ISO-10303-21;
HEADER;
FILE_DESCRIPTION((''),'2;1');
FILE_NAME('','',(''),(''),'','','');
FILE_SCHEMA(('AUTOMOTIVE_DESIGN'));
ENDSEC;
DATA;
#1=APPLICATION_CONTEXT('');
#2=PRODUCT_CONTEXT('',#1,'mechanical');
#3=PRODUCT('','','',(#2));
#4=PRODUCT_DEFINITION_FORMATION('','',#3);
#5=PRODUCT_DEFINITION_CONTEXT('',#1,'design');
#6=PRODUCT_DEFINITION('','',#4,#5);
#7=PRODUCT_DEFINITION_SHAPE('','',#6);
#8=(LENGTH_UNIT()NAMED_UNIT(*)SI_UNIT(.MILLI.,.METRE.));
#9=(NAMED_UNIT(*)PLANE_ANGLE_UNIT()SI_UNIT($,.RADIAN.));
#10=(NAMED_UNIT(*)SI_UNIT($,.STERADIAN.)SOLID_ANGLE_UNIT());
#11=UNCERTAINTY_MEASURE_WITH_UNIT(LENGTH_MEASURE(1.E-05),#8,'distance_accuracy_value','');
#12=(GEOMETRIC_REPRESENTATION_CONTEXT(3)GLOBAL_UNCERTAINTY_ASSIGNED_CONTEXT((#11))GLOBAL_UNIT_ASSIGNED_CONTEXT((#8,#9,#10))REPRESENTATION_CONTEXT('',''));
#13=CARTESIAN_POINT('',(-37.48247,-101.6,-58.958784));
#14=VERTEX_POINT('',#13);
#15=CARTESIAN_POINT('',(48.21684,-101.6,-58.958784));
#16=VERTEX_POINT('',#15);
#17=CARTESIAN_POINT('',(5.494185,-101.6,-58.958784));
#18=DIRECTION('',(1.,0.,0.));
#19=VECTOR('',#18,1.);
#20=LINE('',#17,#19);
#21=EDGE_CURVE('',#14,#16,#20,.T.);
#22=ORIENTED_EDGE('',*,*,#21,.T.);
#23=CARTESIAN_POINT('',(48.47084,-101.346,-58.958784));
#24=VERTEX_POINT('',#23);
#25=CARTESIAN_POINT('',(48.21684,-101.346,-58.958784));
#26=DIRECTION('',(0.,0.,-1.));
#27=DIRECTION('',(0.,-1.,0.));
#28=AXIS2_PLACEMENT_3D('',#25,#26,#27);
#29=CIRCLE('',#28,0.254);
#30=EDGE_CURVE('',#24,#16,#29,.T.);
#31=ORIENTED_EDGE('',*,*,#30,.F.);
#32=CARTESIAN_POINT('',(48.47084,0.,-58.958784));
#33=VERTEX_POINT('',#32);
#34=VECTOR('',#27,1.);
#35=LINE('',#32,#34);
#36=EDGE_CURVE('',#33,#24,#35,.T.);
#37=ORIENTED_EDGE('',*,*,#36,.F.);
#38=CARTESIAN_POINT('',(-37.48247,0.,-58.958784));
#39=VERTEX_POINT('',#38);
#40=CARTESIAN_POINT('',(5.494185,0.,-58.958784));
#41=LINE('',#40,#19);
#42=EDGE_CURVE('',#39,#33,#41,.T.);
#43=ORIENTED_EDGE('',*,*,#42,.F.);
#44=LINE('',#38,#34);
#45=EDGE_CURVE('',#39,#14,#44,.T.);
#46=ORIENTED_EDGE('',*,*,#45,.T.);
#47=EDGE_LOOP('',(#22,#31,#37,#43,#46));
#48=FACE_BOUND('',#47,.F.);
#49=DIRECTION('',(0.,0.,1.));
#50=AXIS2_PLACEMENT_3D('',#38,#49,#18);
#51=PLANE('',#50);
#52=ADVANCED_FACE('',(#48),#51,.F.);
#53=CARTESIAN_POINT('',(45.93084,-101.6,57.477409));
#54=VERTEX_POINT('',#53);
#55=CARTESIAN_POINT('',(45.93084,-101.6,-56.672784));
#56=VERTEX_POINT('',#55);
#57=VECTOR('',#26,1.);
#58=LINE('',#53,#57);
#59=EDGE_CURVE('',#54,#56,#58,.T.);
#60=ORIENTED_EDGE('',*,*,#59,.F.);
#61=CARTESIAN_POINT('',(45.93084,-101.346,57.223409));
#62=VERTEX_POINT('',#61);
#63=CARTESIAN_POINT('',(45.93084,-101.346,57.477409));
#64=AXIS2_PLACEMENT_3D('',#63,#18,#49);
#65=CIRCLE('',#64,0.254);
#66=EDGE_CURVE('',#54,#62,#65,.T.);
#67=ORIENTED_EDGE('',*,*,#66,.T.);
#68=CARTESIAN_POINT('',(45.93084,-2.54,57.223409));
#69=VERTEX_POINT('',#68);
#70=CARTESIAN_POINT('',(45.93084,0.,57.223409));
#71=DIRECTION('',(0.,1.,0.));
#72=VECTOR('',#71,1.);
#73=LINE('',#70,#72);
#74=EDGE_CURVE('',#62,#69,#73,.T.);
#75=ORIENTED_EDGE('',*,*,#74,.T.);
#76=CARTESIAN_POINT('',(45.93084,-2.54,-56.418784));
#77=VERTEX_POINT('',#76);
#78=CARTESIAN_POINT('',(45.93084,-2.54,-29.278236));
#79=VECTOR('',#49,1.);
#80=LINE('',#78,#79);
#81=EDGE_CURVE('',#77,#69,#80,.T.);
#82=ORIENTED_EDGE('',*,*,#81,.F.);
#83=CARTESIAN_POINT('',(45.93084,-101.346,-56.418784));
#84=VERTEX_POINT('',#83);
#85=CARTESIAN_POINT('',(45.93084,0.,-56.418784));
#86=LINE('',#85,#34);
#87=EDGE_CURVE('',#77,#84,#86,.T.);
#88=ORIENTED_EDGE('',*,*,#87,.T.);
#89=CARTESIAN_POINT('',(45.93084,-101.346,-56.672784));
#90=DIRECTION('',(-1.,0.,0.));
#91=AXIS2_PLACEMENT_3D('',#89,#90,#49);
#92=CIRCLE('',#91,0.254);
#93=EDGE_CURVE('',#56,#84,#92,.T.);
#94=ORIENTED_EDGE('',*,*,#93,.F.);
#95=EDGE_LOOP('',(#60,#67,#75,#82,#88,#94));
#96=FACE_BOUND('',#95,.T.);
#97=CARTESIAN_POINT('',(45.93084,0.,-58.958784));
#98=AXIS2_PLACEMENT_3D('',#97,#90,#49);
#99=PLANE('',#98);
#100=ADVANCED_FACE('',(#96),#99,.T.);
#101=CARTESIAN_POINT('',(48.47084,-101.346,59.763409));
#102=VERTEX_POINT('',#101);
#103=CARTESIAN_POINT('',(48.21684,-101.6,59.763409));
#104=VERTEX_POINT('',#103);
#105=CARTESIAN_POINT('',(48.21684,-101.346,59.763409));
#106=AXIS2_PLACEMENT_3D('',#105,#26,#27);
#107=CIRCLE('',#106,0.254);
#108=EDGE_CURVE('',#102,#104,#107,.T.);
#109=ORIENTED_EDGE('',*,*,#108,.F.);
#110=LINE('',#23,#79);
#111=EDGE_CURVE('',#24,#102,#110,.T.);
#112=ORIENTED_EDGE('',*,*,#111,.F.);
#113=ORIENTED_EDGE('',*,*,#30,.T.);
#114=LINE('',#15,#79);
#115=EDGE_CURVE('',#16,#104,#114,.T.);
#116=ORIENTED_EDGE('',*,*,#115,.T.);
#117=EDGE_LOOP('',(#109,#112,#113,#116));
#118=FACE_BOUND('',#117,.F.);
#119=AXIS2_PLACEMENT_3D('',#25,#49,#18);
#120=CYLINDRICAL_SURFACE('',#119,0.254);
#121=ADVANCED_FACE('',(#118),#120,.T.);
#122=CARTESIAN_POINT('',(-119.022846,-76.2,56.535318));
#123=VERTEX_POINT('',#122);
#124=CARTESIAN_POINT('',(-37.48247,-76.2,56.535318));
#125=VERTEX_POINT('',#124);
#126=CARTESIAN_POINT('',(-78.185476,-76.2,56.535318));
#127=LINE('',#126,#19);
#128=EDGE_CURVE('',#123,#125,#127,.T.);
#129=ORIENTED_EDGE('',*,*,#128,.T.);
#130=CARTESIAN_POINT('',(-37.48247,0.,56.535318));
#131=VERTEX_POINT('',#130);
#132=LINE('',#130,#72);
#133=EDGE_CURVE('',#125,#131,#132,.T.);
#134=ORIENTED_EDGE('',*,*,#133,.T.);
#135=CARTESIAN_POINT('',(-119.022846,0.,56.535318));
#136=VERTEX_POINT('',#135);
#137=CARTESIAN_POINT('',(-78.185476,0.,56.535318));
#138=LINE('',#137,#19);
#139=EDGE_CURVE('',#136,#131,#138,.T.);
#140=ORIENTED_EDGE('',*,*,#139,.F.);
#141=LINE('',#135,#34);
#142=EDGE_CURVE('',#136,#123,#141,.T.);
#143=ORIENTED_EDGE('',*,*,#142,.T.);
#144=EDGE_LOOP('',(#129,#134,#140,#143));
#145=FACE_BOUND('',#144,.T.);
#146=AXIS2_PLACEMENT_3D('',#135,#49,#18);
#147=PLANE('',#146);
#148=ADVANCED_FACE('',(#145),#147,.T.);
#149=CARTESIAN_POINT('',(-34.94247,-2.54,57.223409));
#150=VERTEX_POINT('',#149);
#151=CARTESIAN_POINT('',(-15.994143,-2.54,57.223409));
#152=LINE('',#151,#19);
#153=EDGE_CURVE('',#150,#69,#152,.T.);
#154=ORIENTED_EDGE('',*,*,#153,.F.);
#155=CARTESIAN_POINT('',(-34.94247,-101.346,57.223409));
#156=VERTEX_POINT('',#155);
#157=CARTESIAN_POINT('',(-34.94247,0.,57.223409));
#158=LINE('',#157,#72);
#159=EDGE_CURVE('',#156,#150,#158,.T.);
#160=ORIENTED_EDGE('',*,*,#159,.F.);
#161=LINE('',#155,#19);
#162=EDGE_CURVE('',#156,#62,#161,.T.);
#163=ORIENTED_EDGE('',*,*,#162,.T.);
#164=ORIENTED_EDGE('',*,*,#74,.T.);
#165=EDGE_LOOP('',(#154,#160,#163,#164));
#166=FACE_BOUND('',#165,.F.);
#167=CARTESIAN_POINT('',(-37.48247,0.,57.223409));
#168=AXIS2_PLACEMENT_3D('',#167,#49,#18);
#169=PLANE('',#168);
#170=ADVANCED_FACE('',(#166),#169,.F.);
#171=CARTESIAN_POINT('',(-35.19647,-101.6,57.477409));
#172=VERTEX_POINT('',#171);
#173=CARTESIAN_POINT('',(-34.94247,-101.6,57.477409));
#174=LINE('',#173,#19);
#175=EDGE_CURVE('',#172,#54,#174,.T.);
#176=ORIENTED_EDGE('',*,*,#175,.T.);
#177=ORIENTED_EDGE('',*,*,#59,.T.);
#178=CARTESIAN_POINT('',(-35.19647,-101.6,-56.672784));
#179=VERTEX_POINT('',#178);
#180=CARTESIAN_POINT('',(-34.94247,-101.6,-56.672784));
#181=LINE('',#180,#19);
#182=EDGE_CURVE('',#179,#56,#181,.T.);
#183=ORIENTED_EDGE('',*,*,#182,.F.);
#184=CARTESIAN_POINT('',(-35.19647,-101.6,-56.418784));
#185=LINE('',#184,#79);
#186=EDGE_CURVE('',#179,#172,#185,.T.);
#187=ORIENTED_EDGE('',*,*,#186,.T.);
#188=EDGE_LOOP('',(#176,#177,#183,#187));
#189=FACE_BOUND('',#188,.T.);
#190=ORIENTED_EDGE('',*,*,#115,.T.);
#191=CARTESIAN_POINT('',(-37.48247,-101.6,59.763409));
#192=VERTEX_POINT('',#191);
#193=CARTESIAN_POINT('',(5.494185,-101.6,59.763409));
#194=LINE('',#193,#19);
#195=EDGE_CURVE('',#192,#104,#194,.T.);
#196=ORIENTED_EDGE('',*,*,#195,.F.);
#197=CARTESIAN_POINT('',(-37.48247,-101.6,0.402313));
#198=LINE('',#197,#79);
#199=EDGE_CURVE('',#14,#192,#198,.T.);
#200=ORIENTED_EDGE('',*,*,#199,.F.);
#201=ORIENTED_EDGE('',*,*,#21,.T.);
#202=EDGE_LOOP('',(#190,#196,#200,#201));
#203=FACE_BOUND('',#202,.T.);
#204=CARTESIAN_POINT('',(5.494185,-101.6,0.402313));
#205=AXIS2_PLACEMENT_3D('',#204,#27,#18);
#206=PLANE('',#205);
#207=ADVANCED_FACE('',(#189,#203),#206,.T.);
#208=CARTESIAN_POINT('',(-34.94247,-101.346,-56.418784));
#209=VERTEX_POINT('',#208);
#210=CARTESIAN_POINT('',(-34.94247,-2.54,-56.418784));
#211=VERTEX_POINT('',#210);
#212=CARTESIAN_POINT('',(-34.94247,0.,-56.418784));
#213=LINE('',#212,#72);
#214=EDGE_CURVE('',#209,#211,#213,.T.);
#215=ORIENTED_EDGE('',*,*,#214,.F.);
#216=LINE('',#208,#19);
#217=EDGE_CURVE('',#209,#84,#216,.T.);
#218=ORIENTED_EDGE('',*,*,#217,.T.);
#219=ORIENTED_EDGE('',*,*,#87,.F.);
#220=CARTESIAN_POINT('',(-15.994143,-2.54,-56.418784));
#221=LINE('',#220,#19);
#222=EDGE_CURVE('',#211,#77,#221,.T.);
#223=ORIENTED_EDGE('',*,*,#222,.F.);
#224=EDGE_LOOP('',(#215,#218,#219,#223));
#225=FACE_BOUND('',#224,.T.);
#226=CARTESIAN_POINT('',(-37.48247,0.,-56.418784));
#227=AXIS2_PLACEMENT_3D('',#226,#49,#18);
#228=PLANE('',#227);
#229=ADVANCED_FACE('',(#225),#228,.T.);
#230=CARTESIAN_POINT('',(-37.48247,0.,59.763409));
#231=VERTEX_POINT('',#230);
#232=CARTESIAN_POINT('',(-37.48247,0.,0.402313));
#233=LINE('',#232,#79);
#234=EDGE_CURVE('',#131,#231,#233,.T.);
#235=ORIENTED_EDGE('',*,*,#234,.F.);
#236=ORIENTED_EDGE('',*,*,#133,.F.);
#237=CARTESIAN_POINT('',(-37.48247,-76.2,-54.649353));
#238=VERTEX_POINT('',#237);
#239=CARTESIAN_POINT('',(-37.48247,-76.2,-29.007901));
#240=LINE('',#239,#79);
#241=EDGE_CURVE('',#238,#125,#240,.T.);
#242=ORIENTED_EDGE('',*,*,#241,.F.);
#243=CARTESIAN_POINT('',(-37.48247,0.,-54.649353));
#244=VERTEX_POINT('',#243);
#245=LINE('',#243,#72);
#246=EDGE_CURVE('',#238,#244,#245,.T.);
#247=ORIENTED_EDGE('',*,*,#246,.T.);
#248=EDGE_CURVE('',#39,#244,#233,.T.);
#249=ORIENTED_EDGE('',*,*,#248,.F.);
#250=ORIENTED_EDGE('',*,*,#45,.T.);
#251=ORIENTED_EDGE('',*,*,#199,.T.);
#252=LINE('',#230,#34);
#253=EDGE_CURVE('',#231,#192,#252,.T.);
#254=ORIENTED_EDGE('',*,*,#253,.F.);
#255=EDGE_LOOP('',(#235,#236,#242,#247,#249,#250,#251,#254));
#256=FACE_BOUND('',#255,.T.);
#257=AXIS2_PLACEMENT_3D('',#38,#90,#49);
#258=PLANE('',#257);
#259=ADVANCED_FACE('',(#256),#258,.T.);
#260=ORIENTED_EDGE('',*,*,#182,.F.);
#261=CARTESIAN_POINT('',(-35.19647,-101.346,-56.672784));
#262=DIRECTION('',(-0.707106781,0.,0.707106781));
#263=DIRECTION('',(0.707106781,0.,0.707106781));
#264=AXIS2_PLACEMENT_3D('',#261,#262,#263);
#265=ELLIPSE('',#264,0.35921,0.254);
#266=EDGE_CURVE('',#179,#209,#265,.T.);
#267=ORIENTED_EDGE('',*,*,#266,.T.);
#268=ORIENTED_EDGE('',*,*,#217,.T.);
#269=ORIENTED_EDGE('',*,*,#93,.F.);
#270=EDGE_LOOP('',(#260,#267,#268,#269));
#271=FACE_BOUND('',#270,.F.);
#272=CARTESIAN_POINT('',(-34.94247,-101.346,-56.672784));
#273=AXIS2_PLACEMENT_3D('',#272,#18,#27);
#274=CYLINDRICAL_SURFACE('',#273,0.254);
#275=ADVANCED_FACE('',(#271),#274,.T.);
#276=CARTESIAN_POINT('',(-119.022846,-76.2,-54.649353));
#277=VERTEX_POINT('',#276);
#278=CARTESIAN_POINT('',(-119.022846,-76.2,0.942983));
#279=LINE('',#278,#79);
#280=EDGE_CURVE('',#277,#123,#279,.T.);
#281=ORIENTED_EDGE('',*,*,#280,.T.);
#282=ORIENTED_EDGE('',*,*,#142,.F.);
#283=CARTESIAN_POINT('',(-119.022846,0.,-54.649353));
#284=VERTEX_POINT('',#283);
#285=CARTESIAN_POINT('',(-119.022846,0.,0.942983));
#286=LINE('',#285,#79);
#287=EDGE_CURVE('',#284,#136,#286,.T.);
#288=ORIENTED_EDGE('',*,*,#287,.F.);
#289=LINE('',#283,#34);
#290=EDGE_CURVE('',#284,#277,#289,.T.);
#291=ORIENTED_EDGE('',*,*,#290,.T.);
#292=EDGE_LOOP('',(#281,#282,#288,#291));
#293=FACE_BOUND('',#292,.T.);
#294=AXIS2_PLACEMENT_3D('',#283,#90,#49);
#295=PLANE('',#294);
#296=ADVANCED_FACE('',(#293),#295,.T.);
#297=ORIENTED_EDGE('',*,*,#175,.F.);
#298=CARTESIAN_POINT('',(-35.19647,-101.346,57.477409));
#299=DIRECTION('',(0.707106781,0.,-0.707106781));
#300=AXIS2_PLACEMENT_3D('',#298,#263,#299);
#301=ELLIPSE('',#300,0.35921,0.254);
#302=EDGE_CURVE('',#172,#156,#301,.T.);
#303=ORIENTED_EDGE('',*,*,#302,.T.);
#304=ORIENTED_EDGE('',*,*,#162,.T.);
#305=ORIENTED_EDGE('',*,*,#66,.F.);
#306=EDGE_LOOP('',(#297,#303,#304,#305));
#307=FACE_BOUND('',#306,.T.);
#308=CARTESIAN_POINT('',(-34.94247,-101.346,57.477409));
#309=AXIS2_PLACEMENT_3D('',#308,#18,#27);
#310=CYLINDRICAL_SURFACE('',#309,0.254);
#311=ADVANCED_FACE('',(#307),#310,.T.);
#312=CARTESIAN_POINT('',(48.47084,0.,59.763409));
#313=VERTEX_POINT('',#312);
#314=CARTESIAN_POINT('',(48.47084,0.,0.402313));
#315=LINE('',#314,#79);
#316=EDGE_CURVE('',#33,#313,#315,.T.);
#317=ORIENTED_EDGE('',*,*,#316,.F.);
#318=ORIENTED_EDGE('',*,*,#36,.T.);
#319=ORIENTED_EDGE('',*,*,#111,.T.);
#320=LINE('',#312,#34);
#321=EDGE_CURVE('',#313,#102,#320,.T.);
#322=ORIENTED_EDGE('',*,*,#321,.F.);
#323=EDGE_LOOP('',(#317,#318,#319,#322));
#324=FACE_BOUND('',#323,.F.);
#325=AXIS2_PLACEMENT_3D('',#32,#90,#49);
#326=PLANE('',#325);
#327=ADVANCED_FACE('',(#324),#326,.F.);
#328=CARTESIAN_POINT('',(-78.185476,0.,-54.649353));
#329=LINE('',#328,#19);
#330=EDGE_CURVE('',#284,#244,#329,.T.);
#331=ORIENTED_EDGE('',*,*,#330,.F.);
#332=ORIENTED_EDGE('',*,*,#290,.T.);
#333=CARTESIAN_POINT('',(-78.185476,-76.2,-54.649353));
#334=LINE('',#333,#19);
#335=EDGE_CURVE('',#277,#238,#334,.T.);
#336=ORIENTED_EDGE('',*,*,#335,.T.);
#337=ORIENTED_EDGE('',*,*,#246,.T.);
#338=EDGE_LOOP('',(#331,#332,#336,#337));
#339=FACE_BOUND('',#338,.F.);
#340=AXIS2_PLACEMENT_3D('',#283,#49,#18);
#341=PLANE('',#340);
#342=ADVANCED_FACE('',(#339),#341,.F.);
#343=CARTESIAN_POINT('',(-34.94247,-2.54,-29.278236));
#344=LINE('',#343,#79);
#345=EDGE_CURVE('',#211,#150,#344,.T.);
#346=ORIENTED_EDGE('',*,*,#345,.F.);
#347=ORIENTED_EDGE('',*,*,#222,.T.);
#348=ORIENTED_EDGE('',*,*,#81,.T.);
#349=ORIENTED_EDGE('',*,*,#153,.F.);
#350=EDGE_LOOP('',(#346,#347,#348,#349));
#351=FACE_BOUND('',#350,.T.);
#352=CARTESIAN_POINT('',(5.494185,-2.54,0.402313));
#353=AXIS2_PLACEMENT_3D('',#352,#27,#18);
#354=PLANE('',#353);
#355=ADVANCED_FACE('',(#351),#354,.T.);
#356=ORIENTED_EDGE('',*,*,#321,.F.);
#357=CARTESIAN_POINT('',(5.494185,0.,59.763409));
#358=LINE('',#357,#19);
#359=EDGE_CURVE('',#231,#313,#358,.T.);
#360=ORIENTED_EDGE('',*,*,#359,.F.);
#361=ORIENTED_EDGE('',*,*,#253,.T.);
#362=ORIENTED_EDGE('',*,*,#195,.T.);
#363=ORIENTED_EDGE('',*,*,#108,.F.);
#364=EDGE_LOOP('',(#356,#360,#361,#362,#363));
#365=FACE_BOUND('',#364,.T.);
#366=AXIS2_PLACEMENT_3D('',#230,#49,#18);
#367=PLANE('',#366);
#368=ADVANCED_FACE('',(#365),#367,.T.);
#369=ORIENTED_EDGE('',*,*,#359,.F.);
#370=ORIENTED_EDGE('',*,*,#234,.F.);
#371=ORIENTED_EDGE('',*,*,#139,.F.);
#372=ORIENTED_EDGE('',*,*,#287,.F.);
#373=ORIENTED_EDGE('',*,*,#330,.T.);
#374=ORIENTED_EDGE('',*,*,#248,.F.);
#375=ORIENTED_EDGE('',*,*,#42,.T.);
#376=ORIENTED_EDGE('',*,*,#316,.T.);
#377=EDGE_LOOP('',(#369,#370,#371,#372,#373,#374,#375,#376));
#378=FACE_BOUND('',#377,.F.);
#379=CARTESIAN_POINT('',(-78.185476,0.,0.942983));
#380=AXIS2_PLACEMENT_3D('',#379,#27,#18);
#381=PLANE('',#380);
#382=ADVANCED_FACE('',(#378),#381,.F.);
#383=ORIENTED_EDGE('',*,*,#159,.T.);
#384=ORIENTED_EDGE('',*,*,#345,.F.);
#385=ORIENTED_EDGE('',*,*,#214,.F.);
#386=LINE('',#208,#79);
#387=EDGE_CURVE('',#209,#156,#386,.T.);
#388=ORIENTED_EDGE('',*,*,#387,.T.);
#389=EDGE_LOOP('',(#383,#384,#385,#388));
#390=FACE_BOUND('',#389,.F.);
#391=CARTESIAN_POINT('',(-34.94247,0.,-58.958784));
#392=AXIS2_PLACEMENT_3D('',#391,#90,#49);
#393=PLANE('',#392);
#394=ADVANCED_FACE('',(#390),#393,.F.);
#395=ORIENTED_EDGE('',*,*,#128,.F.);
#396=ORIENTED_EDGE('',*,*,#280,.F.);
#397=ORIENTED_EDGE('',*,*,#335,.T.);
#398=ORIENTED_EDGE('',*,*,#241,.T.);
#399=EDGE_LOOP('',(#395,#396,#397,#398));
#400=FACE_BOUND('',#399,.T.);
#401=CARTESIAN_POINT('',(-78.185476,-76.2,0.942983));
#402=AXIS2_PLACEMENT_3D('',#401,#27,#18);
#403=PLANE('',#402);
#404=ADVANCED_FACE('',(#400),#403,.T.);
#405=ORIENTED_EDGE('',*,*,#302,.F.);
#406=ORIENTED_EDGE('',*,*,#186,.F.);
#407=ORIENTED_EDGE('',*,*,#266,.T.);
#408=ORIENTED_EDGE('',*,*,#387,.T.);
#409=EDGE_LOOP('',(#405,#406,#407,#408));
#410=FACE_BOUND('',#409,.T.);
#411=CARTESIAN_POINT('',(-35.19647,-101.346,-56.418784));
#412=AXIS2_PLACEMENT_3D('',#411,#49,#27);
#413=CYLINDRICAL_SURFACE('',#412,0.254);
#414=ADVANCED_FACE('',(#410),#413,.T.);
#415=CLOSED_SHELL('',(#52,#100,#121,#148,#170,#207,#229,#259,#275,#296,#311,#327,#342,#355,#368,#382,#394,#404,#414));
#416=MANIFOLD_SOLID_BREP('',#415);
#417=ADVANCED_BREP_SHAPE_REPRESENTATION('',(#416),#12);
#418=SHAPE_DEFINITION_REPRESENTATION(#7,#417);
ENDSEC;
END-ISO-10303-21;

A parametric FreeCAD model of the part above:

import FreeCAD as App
import Part
import Sketcher
Q = App.Units.Quantity


def edges_at(feature, points):
    """Names of the edges that pass closest to the given points."""
    edges = feature.Shape.Edges
    near = lambda p: min(range(len(edges)), key=lambda i: edges[i].distToShape(Part.Vertex(*p))[0])
    return sorted({f"Edge{near(p) + 1}" for p in points})


def faces_at(feature, points):
    """Names of the faces that lie closest to the given points."""
    faces = feature.Shape.Faces
    near = lambda p: min(range(len(faces)), key=lambda i: faces[i].distToShape(Part.Vertex(*p))[0])
    return sorted({f"Face{near(p) + 1}" for p in points})

doc = App.newDocument("Part")
body = doc.addObject("PartDesign::Body", "Body")

sketch1 = body.newObject("Sketcher::SketchObject", "Sketch")
sketch1.AttachmentSupport = (doc.getObject("XZ_Plane"), [""])
sketch1.MapMode = "FlatFace"
sketch1.addGeometry(Part.LineSegment(App.Vector(-37.48247, 59.763409, 0), App.Vector(-37.48247, -58.958784, 0)), False)
sketch1.addGeometry(Part.LineSegment(App.Vector(-37.48247, -58.958784, 0), App.Vector(48.47084, -58.958784, 0)), False)
sketch1.addGeometry(Part.LineSegment(App.Vector(48.47084, -58.958784, 0), App.Vector(48.47084, 59.763409, 0)), False)
sketch1.addGeometry(Part.LineSegment(App.Vector(48.47084, 59.763409, 0), App.Vector(-37.48247, 59.763409, 0)), False)
sketch1.addConstraint(Sketcher.Constraint("Coincident", 0, 2, 1, 1))
sketch1.addConstraint(Sketcher.Constraint("Coincident", 1, 2, 2, 1))
sketch1.addConstraint(Sketcher.Constraint("Coincident", 2, 2, 3, 1))
sketch1.addConstraint(Sketcher.Constraint("Coincident", 3, 2, 0, 1))
sketch1.addConstraint(Sketcher.Constraint("Vertical", 0))
sketch1.addConstraint(Sketcher.Constraint("Horizontal", 1))
sketch1.addConstraint(Sketcher.Constraint("Vertical", 2))
sketch1.addConstraint(Sketcher.Constraint("Horizontal", 3))
sketch1.addConstraint(Sketcher.Constraint("DistanceX", 1, 1, 1, 2, Q("85.95331 mm")))
sketch1.addConstraint(Sketcher.Constraint("DistanceY", 0, 2, 0, 1, Q("118.722193 mm")))
sketch1.addConstraint(Sketcher.Constraint("DistanceX", 0, 2, -1, 1, Q("37.48247 mm")))
sketch1.addConstraint(Sketcher.Constraint("DistanceY", -1, 1, 2, 2, Q("59.763409 mm")))
pad1 = body.newObject("PartDesign::Pad", "Pad")
pad1.Profile = sketch1
pad1.Length = Q("4 in")
doc.recompute()

thickness = body.newObject("PartDesign::Thickness", "Thickness")
thickness.Base = (pad1, faces_at(pad1, [(5.494, -101.6, 0.402)]))
thickness.Value = Q("0.1 in")
thickness.Reversed = True
thickness.Join = "Arc"
doc.recompute()

fillet = body.newObject("PartDesign::Fillet", "Fillet")
fillet.Base = (thickness, edges_at(thickness, [
    (48.471, -101.6, 0.402),
    (5.494, -101.6, 57.223),
    (-34.942, -101.6, 0.402),
    (5.494, -101.6, -56.419),
]))
fillet.Radius = Q("0.01 in")

sketch2 = body.newObject("Sketcher::SketchObject", "Sketch001")
sketch2.AttachmentSupport = (doc.getObject("XZ_Plane"), [""])
sketch2.MapMode = "FlatFace"
sketch2.addGeometry(Part.LineSegment(App.Vector(-119.022846, 56.535318, 0), App.Vector(-119.022846, -54.649353, 0)), False)
sketch2.addGeometry(Part.LineSegment(App.Vector(-119.022846, -54.649353, 0), App.Vector(-37.348107, -54.649353, 0)), False)
sketch2.addGeometry(Part.LineSegment(App.Vector(-37.348107, -54.649353, 0), App.Vector(-37.348107, 56.535318, 0)), False)
sketch2.addGeometry(Part.LineSegment(App.Vector(-37.348107, 56.535318, 0), App.Vector(-119.022846, 56.535318, 0)), False)
sketch2.addConstraint(Sketcher.Constraint("Coincident", 0, 2, 1, 1))
sketch2.addConstraint(Sketcher.Constraint("Coincident", 1, 2, 2, 1))
sketch2.addConstraint(Sketcher.Constraint("Coincident", 2, 2, 3, 1))
sketch2.addConstraint(Sketcher.Constraint("Coincident", 3, 2, 0, 1))
sketch2.addConstraint(Sketcher.Constraint("Vertical", 0))
sketch2.addConstraint(Sketcher.Constraint("Horizontal", 1))
sketch2.addConstraint(Sketcher.Constraint("Vertical", 2))
sketch2.addConstraint(Sketcher.Constraint("Horizontal", 3))
sketch2.addConstraint(Sketcher.Constraint("DistanceY", -1, 1, 2, 2, Q("2.2257999 in")))
sketch2.addConstraint(Sketcher.Constraint("DistanceX", 1, 1, 1, 2, Q("81.67474 mm")))
sketch2.addConstraint(Sketcher.Constraint("DistanceY", 0, 2, 0, 1, Q("111.184672 mm")))
sketch2.addConstraint(Sketcher.Constraint("DistanceX", 0, 2, -1, 1, Q("119.022846 mm")))
pad2 = body.newObject("PartDesign::Pad", "Pad001")
pad2.Profile = sketch2
pad2.Length = Q("3 in")

doc.recompute()
